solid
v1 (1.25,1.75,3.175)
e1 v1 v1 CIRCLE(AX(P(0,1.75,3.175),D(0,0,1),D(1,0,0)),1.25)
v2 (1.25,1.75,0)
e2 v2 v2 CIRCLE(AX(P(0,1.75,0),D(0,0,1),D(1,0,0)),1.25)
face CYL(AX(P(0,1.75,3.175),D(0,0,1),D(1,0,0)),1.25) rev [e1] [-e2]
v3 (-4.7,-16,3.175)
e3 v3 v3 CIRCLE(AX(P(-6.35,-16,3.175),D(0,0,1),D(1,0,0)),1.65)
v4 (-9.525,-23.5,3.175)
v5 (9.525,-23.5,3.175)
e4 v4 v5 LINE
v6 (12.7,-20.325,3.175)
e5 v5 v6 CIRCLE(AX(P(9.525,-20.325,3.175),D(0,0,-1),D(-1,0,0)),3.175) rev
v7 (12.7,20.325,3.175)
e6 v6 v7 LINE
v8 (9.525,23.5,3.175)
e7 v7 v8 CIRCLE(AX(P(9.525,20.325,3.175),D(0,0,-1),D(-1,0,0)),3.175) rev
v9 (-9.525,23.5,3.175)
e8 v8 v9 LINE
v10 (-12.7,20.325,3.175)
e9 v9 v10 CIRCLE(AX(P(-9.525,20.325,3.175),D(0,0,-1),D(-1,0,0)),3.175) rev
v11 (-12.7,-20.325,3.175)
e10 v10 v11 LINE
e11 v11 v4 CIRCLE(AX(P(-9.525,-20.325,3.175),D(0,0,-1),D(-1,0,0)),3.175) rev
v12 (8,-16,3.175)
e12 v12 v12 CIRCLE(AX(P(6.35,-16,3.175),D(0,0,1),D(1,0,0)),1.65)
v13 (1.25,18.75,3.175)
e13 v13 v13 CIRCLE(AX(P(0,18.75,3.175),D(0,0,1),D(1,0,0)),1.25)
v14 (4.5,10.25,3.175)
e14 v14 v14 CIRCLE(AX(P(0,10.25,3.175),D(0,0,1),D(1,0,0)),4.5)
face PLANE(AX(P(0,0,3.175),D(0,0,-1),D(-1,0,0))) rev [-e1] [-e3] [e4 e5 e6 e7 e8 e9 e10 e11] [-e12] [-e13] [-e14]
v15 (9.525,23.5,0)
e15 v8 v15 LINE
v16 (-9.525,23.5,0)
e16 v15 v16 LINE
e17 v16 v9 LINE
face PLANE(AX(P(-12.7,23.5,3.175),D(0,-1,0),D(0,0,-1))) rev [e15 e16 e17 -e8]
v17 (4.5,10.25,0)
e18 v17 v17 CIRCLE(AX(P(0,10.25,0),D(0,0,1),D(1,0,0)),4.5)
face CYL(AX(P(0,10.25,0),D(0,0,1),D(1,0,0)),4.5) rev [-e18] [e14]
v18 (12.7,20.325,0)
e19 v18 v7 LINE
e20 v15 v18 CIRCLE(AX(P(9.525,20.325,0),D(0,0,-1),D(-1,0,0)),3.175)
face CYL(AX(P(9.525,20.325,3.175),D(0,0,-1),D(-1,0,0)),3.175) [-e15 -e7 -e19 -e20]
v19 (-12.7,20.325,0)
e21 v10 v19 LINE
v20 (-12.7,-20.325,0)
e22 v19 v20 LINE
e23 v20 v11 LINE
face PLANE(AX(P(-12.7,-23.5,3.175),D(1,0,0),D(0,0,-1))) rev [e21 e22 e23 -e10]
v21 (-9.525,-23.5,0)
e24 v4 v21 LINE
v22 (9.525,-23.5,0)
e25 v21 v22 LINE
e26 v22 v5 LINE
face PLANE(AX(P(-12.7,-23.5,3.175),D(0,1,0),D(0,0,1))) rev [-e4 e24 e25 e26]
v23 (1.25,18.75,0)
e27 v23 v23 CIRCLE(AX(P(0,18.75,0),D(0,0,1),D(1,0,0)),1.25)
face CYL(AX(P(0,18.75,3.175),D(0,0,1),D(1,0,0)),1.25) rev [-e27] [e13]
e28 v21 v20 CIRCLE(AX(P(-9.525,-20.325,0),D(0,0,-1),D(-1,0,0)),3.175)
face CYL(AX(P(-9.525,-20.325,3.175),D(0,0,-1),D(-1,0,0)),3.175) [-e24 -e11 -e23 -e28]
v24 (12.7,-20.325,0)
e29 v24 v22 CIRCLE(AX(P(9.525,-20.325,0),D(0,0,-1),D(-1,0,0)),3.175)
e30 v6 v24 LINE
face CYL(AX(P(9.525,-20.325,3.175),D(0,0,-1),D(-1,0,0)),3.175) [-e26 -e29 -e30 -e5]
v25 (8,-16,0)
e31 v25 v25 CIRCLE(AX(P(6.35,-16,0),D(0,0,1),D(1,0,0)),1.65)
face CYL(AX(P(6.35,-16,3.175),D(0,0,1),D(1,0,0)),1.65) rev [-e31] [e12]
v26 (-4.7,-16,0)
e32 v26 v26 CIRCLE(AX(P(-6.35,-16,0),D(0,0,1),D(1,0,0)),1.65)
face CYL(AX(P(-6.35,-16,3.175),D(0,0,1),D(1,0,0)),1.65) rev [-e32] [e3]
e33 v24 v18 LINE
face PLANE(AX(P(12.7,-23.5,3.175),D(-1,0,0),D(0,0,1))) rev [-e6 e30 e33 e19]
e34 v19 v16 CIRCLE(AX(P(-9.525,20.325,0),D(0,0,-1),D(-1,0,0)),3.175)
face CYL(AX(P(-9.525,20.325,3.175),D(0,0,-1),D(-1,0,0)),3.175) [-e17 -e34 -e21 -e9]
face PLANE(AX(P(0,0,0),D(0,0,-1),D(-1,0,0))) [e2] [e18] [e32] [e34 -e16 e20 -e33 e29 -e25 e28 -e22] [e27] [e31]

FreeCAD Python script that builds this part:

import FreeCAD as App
import Part
import Sketcher

V = App.Vector
Q = App.Units.Quantity


def edges_at(feature, points):
    """Names of the edges that pass closest to the given points."""
    edges = feature.Shape.Edges
    near = lambda p: min(range(len(edges)), key=lambda i: edges[i].distToShape(Part.Vertex(*p))[0])
    return sorted({f"Edge{near(p) + 1}" for p in points})

doc = App.newDocument("Part")
body = doc.addObject("PartDesign::Body", "Body")

# Sketch on XY plane
sketch1 = body.newObject("Sketcher::SketchObject", "Sketch")
sketch1.AttachmentSupport = (doc.getObject("XY_Plane"), [""])
sketch1.MapMode = "FlatFace"
sketch1.addGeometry([
    Part.LineSegment(V(-13, 24, 0), V(-13, -24, 0)),
    Part.LineSegment(V(-13, -24, 0), V(13, -24, 0)),
    Part.LineSegment(V(13, -24, 0), V(13, 24, 0)),
    Part.LineSegment(V(13, 24, 0), V(-13, 24, 0)),
], False)
sketch1.addConstraint([
    Sketcher.Constraint("Coincident", 0, 2, 1, 1),
    Sketcher.Constraint("Coincident", 1, 2, 2, 1),
    Sketcher.Constraint("Coincident", 2, 2, 3, 1),
    Sketcher.Constraint("Coincident", 3, 2, 0, 1),
    Sketcher.Constraint("Vertical", 0),
    Sketcher.Constraint("Horizontal", 1),
    Sketcher.Constraint("Vertical", 2),
    Sketcher.Constraint("Horizontal", 3),
    Sketcher.Constraint("Symmetric", 0, 2, 2, 2, -1, 1),
    Sketcher.Constraint("DistanceY", 0, 2, 0, 1, Q("47 mm")),
    Sketcher.Constraint("DistanceX", 1, 1, 1, 2, Q("25.4 mm")),
])
pad1 = body.newObject("PartDesign::Pad", "Pad")
pad1.Profile = sketch1
pad1.Length = 3.175

# Sketch on XY plane
sketch2 = body.newObject("Sketcher::SketchObject", "Sketch001")
sketch2.AttachmentSupport = (doc.getObject("XY_Plane"), [""])
sketch2.MapMode = "FlatFace"
sketch2.AttachmentOffset = App.Placement(V(0, 0, 3.175), App.Rotation())
sketch2.addGeometry(Part.Circle(V(0, 10.2, 0), V(0, 0, 1), 4.5), False)
sketch2.addConstraint([
    Sketcher.Constraint("PointOnObject", 0, 3, -2),
    Sketcher.Constraint("Diameter", 0, Q("9 mm")),
    Sketcher.Constraint("DistanceY", -1, 1, 0, 3, Q("10.25 mm")),
])
pocket1 = body.newObject("PartDesign::Pocket", "Pocket")
pocket1.Profile = sketch2
pocket1.Type = "ThroughAll"

# Sketch on XY plane
sketch3 = body.newObject("Sketcher::SketchObject", "Sketch002")
sketch3.AttachmentSupport = (doc.getObject("XY_Plane"), [""])
sketch3.MapMode = "FlatFace"
sketch3.AttachmentOffset = App.Placement(V(0, 0, 3.175), App.Rotation())
sketch3.addGeometry([
    Part.Circle(V(0, 18.8, 0), V(0, 0, 1), 1.2),
    Part.Circle(V(0, 1.8, 0), V(0, 0, 1), 1.2),
], False)
sketch3.addConstraint([
    Sketcher.Constraint("Equal", 0, 1),
    Sketcher.Constraint("PointOnObject", 0, 3, -2),
    Sketcher.Constraint("PointOnObject", 1, 3, -2),
    Sketcher.Constraint("Diameter", 0, Q("2.5 mm")),
    Sketcher.Constraint("DistanceY", 1, 3, 0, 3, Q("17 mm")),
    Sketcher.Constraint("DistanceY", -1, 1, 0, 3, Q("18.75 mm")),
])
doc.recompute()
hole = body.newObject("PartDesign::Hole", "Hole")
hole.Profile = sketch3
hole.ThreadType = "None"
hole.Diameter = 2.5
hole.DepthType = "ThroughAll"
doc.recompute()

fillet = body.newObject("PartDesign::Fillet", "Fillet")
fillet.Base = (hole, edges_at(hole, [
    (12.7, -23.5, 1.587),
    (-12.7, -23.5, 1.587),
    (-12.7, 23.5, 1.587),
    (12.7, 23.5, 1.587),
]))
fillet.Radius = 3.175

# Sketch on XY plane
sketch4 = body.newObject("Sketcher::SketchObject", "Sketch003")
sketch4.AttachmentSupport = (doc.getObject("XY_Plane"), [""])
sketch4.MapMode = "FlatFace"
sketch4.AttachmentOffset = App.Placement(V(0, 0, 3.175), App.Rotation())
sketch4.addGeometry([
    Part.Circle(V(-6.3, -16, 0), V(0, 0, 1), 1.6),
    Part.Circle(V(6.3, -16, 0), V(0, 0, 1), 1.6),
], False)
sketch4.addConstraint([
    Sketcher.Constraint("Equal", 0, 1),
    Sketcher.Constraint("Symmetric", 0, 3, 1, 3, -2),
    Sketcher.Constraint("Diameter", 0, Q("3.3 mm")),
    Sketcher.Constraint("DistanceY", 0, 3, -1, 1, Q("16 mm")),
    Sketcher.Constraint("DistanceX", 0, 3, 1, 3, Q("12.7 mm")),
])
doc.recompute()
hole2 = body.newObject("PartDesign::Hole", "Hole001")
hole2.Profile = sketch4
hole2.ThreadType = "None"
hole2.Diameter = 3.3
hole2.DepthType = "ThroughAll"

doc.recompute()
